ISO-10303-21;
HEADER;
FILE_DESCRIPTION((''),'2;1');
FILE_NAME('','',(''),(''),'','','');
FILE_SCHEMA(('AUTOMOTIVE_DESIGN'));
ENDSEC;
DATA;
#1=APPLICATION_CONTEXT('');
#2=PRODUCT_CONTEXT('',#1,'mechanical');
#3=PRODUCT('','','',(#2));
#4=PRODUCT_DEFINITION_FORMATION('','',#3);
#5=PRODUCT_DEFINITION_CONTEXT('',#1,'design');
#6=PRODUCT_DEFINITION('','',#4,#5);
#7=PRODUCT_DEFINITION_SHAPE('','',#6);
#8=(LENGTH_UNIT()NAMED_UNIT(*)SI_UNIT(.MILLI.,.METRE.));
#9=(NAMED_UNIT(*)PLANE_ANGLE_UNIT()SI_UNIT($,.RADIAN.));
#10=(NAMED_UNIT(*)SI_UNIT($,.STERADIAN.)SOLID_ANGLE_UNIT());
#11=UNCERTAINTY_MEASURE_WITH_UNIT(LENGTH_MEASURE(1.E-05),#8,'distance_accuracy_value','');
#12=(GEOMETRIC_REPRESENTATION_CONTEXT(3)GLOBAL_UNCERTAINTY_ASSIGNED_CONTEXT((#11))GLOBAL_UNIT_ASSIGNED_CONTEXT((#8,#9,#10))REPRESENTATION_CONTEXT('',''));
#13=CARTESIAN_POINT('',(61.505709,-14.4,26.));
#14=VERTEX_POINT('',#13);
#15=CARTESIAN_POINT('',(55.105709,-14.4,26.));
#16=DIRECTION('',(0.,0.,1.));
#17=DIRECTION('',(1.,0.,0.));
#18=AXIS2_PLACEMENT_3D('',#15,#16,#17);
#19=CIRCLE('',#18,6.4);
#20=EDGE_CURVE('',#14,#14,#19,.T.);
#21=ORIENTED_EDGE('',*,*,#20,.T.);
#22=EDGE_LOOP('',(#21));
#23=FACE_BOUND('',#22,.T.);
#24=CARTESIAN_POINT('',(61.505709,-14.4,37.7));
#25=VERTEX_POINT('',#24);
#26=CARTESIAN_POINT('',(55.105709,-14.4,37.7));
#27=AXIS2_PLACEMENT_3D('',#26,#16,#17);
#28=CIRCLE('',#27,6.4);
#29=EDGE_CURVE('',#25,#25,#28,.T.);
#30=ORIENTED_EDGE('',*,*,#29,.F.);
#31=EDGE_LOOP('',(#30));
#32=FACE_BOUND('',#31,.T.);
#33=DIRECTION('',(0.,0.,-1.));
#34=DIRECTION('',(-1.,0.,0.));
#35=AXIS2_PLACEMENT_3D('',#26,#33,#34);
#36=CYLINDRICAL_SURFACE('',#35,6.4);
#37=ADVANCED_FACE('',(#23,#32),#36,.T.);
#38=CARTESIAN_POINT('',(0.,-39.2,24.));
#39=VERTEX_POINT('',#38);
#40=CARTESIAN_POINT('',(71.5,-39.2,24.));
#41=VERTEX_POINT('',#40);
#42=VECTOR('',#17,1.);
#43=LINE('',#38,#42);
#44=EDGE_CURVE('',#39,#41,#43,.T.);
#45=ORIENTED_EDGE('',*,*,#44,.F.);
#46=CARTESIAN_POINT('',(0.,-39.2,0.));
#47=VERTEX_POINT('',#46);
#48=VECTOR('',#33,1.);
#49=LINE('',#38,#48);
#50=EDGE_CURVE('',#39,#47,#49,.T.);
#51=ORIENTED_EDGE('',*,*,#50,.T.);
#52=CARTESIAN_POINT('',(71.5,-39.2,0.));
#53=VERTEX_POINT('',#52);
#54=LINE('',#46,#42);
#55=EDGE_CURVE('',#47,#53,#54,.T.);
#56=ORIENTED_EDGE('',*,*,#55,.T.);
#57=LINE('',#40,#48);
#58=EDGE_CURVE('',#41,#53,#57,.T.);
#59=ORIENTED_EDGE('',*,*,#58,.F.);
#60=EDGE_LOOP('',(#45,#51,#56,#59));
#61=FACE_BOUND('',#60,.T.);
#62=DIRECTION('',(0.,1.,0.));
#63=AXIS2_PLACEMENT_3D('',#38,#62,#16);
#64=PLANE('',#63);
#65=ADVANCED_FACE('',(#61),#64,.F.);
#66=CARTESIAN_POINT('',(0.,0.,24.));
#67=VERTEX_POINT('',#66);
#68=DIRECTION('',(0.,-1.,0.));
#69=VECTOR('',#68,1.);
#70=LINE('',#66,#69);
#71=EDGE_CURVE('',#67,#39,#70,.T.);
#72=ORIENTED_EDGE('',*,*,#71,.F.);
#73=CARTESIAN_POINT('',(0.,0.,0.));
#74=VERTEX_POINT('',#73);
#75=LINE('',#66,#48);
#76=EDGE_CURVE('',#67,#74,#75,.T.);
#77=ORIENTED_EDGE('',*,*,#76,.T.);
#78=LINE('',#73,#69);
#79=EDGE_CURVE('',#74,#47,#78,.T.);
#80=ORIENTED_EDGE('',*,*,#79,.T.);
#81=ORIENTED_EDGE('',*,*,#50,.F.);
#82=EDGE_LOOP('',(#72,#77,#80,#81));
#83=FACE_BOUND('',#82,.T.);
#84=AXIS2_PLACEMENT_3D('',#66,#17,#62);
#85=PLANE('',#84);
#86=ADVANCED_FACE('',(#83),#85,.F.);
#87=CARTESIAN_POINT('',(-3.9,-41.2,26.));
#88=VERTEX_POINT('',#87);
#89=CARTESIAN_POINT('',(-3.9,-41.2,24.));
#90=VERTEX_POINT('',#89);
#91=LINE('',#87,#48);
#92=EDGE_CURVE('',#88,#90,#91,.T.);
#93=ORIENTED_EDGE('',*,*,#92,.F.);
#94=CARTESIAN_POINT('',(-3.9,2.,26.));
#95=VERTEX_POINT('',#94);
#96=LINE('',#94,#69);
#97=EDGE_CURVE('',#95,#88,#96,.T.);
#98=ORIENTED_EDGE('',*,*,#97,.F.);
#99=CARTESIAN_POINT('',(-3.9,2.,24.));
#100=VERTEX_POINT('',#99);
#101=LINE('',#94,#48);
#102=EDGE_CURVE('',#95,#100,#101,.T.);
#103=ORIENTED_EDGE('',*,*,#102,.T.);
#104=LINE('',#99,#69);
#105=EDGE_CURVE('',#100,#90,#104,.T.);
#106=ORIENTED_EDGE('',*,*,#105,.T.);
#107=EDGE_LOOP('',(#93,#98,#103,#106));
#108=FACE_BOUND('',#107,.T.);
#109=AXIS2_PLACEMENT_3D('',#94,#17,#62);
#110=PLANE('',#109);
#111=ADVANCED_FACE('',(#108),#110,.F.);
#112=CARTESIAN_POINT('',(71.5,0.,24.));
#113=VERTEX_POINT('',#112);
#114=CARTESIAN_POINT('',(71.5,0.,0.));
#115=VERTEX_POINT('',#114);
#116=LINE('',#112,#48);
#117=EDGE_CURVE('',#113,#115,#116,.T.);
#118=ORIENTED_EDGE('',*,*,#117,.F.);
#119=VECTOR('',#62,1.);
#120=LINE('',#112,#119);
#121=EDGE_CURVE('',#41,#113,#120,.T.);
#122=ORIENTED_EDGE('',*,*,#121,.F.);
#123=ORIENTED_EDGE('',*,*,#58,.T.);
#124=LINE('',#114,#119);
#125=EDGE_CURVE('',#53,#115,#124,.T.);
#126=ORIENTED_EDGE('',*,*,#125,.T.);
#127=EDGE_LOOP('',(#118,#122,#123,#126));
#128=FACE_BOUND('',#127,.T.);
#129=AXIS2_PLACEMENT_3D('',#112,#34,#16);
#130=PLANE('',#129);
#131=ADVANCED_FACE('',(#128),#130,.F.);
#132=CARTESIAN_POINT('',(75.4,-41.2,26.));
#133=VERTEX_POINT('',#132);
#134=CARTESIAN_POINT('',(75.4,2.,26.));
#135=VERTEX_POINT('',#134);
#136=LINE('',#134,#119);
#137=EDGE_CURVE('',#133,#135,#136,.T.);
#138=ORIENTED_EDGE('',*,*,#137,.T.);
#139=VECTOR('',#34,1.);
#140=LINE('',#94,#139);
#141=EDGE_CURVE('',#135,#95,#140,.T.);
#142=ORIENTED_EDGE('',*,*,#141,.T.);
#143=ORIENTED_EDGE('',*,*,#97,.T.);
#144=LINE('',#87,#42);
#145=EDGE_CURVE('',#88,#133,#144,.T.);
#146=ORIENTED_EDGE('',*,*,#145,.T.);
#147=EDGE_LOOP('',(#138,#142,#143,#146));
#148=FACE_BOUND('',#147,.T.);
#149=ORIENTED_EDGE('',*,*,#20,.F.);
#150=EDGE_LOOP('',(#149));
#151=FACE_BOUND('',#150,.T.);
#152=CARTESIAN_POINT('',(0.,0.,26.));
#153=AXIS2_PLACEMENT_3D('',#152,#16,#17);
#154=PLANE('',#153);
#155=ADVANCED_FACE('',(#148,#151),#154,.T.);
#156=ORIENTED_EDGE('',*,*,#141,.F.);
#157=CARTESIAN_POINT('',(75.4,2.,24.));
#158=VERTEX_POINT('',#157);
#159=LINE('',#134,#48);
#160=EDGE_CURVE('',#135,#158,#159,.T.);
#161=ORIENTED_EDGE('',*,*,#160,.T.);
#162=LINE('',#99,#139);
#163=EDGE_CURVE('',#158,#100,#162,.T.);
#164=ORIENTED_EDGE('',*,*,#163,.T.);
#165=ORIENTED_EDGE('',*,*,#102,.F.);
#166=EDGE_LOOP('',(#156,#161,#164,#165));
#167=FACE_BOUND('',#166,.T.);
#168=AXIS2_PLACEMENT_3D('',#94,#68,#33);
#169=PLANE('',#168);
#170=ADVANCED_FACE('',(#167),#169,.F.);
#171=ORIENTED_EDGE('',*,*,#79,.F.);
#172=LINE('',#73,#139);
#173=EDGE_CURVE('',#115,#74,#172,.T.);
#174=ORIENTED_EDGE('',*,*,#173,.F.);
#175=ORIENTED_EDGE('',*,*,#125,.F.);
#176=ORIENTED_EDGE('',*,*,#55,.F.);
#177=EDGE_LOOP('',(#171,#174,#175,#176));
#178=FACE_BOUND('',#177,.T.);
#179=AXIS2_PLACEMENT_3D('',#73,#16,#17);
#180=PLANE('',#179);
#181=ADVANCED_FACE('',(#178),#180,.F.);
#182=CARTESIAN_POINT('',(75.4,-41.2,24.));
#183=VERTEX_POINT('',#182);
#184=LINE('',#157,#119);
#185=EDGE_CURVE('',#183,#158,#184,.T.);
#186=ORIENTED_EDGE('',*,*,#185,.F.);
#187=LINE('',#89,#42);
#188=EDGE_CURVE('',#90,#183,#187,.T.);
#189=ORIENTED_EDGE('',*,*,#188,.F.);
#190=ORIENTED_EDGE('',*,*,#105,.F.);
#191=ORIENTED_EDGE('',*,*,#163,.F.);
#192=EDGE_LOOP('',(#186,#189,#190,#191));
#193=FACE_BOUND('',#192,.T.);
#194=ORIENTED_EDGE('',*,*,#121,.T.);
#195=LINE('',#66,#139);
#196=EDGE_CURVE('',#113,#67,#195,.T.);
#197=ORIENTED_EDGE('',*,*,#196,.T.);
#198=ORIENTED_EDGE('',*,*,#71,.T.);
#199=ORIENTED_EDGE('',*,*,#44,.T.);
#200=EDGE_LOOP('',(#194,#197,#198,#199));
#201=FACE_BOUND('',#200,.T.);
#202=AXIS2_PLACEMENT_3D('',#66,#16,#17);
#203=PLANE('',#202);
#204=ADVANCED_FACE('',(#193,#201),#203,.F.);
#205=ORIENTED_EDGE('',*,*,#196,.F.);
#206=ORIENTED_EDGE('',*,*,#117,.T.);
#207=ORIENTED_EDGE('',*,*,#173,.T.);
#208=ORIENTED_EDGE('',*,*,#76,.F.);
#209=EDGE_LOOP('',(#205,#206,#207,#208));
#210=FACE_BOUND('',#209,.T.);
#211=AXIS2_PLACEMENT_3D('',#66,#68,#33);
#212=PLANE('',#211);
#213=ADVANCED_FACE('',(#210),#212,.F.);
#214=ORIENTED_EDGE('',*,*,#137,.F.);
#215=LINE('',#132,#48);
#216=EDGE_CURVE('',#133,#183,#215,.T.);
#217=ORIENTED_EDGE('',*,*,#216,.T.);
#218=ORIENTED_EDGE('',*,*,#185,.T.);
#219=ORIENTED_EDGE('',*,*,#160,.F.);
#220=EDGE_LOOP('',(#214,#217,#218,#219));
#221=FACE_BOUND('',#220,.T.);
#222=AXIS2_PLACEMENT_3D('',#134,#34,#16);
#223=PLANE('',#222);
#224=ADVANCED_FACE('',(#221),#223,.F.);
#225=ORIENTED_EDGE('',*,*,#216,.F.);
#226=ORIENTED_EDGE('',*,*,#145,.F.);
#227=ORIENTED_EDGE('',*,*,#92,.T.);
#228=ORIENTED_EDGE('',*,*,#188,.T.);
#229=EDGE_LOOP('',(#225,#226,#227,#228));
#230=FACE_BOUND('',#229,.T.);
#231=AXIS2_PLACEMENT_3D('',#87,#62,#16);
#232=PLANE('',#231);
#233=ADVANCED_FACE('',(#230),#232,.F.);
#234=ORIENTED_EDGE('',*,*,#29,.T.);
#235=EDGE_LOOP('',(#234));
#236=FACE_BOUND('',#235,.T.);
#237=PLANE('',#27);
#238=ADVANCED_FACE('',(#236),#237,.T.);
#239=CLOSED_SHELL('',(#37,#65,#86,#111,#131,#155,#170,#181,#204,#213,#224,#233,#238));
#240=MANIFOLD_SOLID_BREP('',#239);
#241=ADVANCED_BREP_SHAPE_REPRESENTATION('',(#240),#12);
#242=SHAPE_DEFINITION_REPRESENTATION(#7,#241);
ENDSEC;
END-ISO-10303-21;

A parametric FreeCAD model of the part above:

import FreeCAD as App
import Part
import Sketcher
from FreeCAD import Vector
Q = App.Units.Quantity


def add_polygon(sketch, points):
    """Adds a closed chain of lines whose ends are joined by coincident constraints."""
    first, n = sketch.GeometryCount, len(points)
    for a, b in zip(points, points[1:] + points[:1]):
        sketch.addGeometry(Part.LineSegment(App.Vector(*a, 0), App.Vector(*b, 0)), False)
    for i in range(n):
        sketch.addConstraint(Sketcher.Constraint("Coincident", first + i, 2, first + (i + 1) % n, 1))

doc = App.newDocument("Part")
body = doc.addObject("PartDesign::Body", "Body")

# Sketch on XY plane
sketch1 = body.newObject("Sketcher::SketchObject", "Sketch")
sketch1.AttachmentSupport = (doc.getObject("XY_Plane"), [""])
sketch1.MapMode = "FlatFace"
add_polygon(sketch1, [(0, 0), (0, -39), (72, -39), (72, 0)])  # lines 0-3
sketch1.addConstraint(Sketcher.Constraint("Vertical", 0))
sketch1.addConstraint(Sketcher.Constraint("Horizontal", 1))
sketch1.addConstraint(Sketcher.Constraint("Vertical", 2))
sketch1.addConstraint(Sketcher.Constraint("Horizontal", 3))
sketch1.addConstraint(Sketcher.Constraint("Coincident", 3, 2, -1, 1))
sketch1.addConstraint(Sketcher.Constraint("DistanceX", 1, 1, 1, 2, Q("71.5 mm")))
sketch1.addConstraint(Sketcher.Constraint("DistanceY", 0, 2, 0, 1, Q("39.2 mm")))
pad1 = body.newObject("PartDesign::Pad", "Pad")
pad1.Profile = sketch1
pad1.Length = 24

# Sketch on XY plane
sketch2 = body.newObject("Sketcher::SketchObject", "Sketch001")
sketch2.AttachmentSupport = (doc.getObject("XY_Plane"), [""])
sketch2.MapMode = "FlatFace"
sketch2.AttachmentOffset = App.Placement(Vector(0, 0, 24), App.Rotation())
add_polygon(sketch2, [(-4, 2), (-4, -41), (75, -41), (75, 2)])  # lines 0-3
sketch2.addConstraint(Sketcher.Constraint("Vertical", 0))
sketch2.addConstraint(Sketcher.Constraint("Horizontal", 1))
sketch2.addConstraint(Sketcher.Constraint("Vertical", 2))
sketch2.addConstraint(Sketcher.Constraint("Horizontal", 3))
sketch2.addConstraint(Sketcher.Constraint("DistanceX", 1, 1, 1, 2, Q("79.3 mm")))
sketch2.addConstraint(Sketcher.Constraint("DistanceY", 0, 2, 0, 1, Q("43.2 mm")))
sketch2.addConstraint(Sketcher.Constraint("DistanceY", -1, 1, 2, 2, Q("2 mm")))
sketch2.addConstraint(Sketcher.Constraint("DistanceX", 0, 2, -1, 1, Q("3.9 mm")))
pad2 = body.newObject("PartDesign::Pad", "Pad001")
pad2.Profile = sketch2
pad2.Length = 2

# Sketch on XY plane
sketch3 = body.newObject("Sketcher::SketchObject", "Sketch002")
sketch3.AttachmentSupport = (doc.getObject("XY_Plane"), [""])
sketch3.MapMode = "FlatFace"
sketch3.AttachmentOffset = App.Placement(Vector(0, 0, 26), App.Rotation())
sketch3.addGeometry(Part.Circle(Vector(55, -14, 0), Vector(0, 0, 1), 6), False)
sketch3.addConstraint(Sketcher.Constraint("Diameter", 0, Q("12.8 mm")))
sketch3.addConstraint(Sketcher.Constraint("DistanceY", 0, 3, -1, 1, Q("14.4 mm")))
sketch3.addConstraint(Sketcher.Constraint("DistanceX", -1, 1, 0, 3, Q("55.105709 mm")))
pad3 = body.newObject("PartDesign::Pad", "Pad002")
pad3.Profile = sketch3
pad3.Length = 11.7

doc.recompute()
